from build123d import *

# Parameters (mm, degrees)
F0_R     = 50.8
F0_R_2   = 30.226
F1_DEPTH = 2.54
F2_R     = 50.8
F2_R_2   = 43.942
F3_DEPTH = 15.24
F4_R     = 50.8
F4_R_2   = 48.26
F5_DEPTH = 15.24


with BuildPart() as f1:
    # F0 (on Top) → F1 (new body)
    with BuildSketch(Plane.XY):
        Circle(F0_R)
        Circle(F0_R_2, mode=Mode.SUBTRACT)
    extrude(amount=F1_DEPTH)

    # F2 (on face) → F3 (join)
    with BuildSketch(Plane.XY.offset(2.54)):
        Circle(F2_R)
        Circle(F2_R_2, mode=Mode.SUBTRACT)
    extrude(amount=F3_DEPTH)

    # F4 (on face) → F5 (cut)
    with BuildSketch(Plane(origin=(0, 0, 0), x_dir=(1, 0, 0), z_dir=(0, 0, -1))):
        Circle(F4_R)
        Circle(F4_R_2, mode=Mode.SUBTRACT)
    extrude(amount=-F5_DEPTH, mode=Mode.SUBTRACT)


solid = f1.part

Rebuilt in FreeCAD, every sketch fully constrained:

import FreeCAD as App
import Part
import Sketcher

V = App.Vector
Q = App.Units.Quantity

doc = App.newDocument("Part")
body = doc.addObject("PartDesign::Body", "Body")

sketch1 = doc.addObject("Sketcher::SketchObject", "Sketch")
body.addObject(sketch1)
sketch1.AttachmentSupport = (doc.XY_Plane, [""])
sketch1.MapMode = "FlatFace"
sketch1.addGeometry(Part.Circle(V(0, 0, 0), V(0, 0, 1), 51), False)
sketch1.addGeometry(Part.Circle(V(0, 0, 0), V(0, 0, 1), 30), False)
sketch1.addConstraint(Sketcher.Constraint("Coincident", 0, 3, -1, 1))
sketch1.addConstraint(Sketcher.Constraint("Coincident", 1, 3, -1, 1))
sketch1.addConstraint(Sketcher.Constraint("Diameter", 0, Q("4 in")))
sketch1.addConstraint(Sketcher.Constraint("Diameter", 1, Q("2.38 in")))
pad1 = doc.addObject("PartDesign::Pad", "Pad")
body.addObject(pad1)
pad1.Profile = sketch1
pad1.Length = Q("0.1 in")

sketch2 = doc.addObject("Sketcher::SketchObject", "Sketch001")
body.addObject(sketch2)
sketch2.AttachmentSupport = (doc.XY_Plane, [""])
sketch2.MapMode = "FlatFace"
sketch2.AttachmentOffset = App.Placement(V(0, 0, 0.1 * 25.4), App.Rotation())
sketch2.addGeometry(Part.Circle(V(0, 0, 0), V(0, 0, 1), 51), False)
sketch2.addGeometry(Part.Circle(V(0, 0, 0), V(0, 0, 1), 44), False)
sketch2.addConstraint(Sketcher.Constraint("Coincident", 0, 3, -1, 1))
sketch2.addConstraint(Sketcher.Constraint("Coincident", 1, 3, -1, 1))
sketch2.addConstraint(Sketcher.Constraint("Diameter", 0, Q("4 in")))
sketch2.addConstraint(Sketcher.Constraint("Diameter", 1, Q("3.46 in")))
pad2 = doc.addObject("PartDesign::Pad", "Pad001")
body.addObject(pad2)
pad2.Profile = sketch2
pad2.Length = Q("0.6 in")

sketch3 = doc.addObject("Sketcher::SketchObject", "Sketch002")
body.addObject(sketch3)
sketch3.AttachmentSupport = (doc.XY_Plane, [""])
sketch3.MapMode = "FlatFace"
sketch3.addGeometry(Part.Circle(V(0, 0, 0), V(0, 0, 1), 51), False)
sketch3.addGeometry(Part.Circle(V(0, 0, 0), V(0, 0, 1), 48), False)
sketch3.addConstraint(Sketcher.Constraint("Coincident", 0, 3, -1, 1))
sketch3.addConstraint(Sketcher.Constraint("Coincident", 1, 3, -1, 1))
sketch3.addConstraint(Sketcher.Constraint("Diameter", 0, Q("4 in")))
sketch3.addConstraint(Sketcher.Constraint("Diameter", 1, Q("3.8 in")))
pocket1 = doc.addObject("PartDesign::Pocket", "Pocket")
body.addObject(pocket1)
pocket1.Profile = sketch3
pocket1.Length = Q("0.6 in")
pocket1.Reversed = True

doc.recompute()
